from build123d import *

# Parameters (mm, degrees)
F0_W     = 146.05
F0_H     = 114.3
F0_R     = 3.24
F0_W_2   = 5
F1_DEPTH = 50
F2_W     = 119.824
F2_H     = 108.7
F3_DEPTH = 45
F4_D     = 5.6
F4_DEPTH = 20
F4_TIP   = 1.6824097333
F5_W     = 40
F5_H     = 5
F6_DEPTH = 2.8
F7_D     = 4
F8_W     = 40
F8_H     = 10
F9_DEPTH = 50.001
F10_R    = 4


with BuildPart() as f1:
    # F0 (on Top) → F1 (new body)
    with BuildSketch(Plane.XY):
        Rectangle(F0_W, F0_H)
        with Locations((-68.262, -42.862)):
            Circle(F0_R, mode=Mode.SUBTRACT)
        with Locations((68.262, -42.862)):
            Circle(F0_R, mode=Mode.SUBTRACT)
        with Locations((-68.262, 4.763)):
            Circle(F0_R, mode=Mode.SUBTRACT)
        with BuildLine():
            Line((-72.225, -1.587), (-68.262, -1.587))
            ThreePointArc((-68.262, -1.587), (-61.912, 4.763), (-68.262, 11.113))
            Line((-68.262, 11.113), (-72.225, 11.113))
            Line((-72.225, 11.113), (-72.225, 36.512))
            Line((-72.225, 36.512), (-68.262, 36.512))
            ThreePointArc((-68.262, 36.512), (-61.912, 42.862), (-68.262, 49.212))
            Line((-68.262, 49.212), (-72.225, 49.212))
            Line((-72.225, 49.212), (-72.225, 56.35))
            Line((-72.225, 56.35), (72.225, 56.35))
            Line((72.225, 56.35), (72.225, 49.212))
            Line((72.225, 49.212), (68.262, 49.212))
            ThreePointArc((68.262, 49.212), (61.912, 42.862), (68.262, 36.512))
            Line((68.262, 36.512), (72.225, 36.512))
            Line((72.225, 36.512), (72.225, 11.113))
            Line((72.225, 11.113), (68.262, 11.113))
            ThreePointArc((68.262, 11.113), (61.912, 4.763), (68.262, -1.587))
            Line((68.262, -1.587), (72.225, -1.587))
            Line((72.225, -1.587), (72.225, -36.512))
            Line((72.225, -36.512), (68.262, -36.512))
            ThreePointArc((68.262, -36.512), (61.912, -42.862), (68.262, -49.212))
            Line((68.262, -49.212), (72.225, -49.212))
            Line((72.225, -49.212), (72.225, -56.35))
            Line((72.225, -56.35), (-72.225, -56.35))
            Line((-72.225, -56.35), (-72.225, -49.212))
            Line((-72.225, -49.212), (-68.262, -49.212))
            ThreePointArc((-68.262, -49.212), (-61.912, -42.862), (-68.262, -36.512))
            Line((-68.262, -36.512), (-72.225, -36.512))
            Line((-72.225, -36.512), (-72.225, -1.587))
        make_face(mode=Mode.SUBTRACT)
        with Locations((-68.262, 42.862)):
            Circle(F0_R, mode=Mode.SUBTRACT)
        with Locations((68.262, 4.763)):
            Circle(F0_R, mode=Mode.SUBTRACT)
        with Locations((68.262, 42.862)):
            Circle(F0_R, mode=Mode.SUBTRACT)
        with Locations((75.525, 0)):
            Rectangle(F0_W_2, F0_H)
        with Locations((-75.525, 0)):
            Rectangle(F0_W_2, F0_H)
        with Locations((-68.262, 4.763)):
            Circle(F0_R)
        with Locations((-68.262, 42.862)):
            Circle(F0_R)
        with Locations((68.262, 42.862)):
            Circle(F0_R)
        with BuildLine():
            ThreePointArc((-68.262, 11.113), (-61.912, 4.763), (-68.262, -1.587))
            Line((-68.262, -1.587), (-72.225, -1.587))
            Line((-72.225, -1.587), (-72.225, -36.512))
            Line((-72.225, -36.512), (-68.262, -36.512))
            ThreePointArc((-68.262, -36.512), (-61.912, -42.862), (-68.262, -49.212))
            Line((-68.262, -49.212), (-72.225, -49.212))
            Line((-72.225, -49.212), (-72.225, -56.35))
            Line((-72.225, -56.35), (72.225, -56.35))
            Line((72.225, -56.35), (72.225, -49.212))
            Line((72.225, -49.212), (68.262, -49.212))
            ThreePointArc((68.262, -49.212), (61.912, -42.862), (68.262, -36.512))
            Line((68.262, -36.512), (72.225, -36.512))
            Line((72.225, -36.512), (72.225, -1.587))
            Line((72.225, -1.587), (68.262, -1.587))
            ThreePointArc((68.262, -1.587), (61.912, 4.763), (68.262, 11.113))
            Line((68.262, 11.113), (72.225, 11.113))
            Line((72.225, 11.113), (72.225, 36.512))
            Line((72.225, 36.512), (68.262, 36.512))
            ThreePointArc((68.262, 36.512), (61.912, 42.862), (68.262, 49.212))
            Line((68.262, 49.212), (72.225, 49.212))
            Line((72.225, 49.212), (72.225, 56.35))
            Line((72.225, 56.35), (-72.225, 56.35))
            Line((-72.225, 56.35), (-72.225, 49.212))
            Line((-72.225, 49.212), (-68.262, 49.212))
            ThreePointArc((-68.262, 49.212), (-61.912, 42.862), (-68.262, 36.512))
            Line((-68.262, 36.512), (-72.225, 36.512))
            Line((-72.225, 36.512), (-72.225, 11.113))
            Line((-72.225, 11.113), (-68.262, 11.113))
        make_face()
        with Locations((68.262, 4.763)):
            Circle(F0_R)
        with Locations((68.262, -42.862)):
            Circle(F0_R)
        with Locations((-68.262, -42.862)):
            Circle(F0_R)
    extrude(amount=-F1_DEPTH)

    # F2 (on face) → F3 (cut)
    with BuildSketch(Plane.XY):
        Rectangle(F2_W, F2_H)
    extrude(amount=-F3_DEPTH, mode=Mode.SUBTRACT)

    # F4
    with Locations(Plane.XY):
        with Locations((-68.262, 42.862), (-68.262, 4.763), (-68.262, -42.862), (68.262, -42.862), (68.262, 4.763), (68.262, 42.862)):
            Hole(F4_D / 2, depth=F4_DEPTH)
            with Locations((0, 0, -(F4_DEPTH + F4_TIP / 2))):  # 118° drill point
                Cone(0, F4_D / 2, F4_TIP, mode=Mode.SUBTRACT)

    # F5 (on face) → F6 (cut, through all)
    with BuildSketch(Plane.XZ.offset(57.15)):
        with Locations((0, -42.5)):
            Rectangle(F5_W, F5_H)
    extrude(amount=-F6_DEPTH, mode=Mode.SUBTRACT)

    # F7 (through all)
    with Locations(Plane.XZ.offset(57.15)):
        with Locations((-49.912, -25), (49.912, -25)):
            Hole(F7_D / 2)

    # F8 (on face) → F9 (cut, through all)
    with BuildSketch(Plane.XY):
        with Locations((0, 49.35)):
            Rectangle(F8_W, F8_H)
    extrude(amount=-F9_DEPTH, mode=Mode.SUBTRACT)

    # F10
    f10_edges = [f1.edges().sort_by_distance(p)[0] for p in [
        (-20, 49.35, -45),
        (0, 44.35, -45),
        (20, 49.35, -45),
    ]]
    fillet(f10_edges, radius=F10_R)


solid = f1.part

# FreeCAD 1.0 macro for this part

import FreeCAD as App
import Part
import Sketcher


def edges_at(feature, points):
    """Names of the edges that pass closest to the given points."""
    edges = feature.Shape.Edges
    near = lambda p: min(range(len(edges)), key=lambda i: edges[i].distToShape(Part.Vertex(*p))[0])
    return sorted({f"Edge{near(p) + 1}" for p in points})

doc = App.newDocument("Part")
body = doc.addObject("PartDesign::Body", "Body")

# Sketch on XY plane
sketch1 = body.newObject("Sketcher::SketchObject", "Sketch")
sketch1.AttachmentSupport = (doc.getObject("XY_Plane"), [""])
sketch1.MapMode = "FlatFace"
sketch1.addGeometry(Part.LineSegment(App.Vector(78, -57, 0), App.Vector(78, 57, 0)), False)
sketch1.addGeometry(Part.LineSegment(App.Vector(78, 57, 0), App.Vector(-78, 57, 0)), False)
sketch1.addGeometry(Part.LineSegment(App.Vector(-78, 57, 0), App.Vector(-78, -57, 0)), False)
sketch1.addGeometry(Part.LineSegment(App.Vector(-78, -57, 0), App.Vector(78, -57, 0)), False)
sketch1.addConstraint(Sketcher.Constraint("Coincident", 0, 2, 1, 1))
sketch1.addConstraint(Sketcher.Constraint("Coincident", 1, 2, 2, 1))
sketch1.addConstraint(Sketcher.Constraint("Coincident", 2, 2, 3, 1))
sketch1.addConstraint(Sketcher.Constraint("Coincident", 3, 2, 0, 1))
sketch1.addConstraint(Sketcher.Constraint("Vertical", 0))
sketch1.addConstraint(Sketcher.Constraint("Horizontal", 1))
sketch1.addConstraint(Sketcher.Constraint("Vertical", 2))
sketch1.addConstraint(Sketcher.Constraint("Horizontal", 3))
sketch1.addConstraint(Sketcher.Constraint("Symmetric", 0, 2, 2, 2, -1, 1))
sketch1.addConstraint(Sketcher.Constraint("DistanceY", 0, 1, 0, 2, 114.3))
sketch1.addConstraint(Sketcher.Constraint("DistanceX", 1, 2, 1, 1, 156.05))
pad1 = body.newObject("PartDesign::Pad", "Pad")
pad1.Profile = sketch1
pad1.Length = 50
pad1.Reversed = True

# Sketch on XY plane
sketch2 = body.newObject("Sketcher::SketchObject", "Sketch001")
sketch2.AttachmentSupport = (doc.getObject("XY_Plane"), [""])
sketch2.MapMode = "FlatFace"
sketch2.addGeometry(Part.LineSegment(App.Vector(-60, 54, 0), App.Vector(-60, -54, 0)), False)
sketch2.addGeometry(Part.LineSegment(App.Vector(-60, -54, 0), App.Vector(60, -54, 0)), False)
sketch2.addGeometry(Part.LineSegment(App.Vector(60, -54, 0), App.Vector(60, 54, 0)), False)
sketch2.addGeometry(Part.LineSegment(App.Vector(60, 54, 0), App.Vector(-60, 54, 0)), False)
sketch2.addConstraint(Sketcher.Constraint("Coincident", 0, 2, 1, 1))
sketch2.addConstraint(Sketcher.Constraint("Coincident", 1, 2, 2, 1))
sketch2.addConstraint(Sketcher.Constraint("Coincident", 2, 2, 3, 1))
sketch2.addConstraint(Sketcher.Constraint("Coincident", 3, 2, 0, 1))
sketch2.addConstraint(Sketcher.Constraint("Vertical", 0))
sketch2.addConstraint(Sketcher.Constraint("Horizontal", 1))
sketch2.addConstraint(Sketcher.Constraint("Vertical", 2))
sketch2.addConstraint(Sketcher.Constraint("Horizontal", 3))
sketch2.addConstraint(Sketcher.Constraint("Symmetric", 0, 2, 2, 2, -1, 1))
sketch2.addConstraint(Sketcher.Constraint("DistanceY", 0, 2, 0, 1, 108.7))
sketch2.addConstraint(Sketcher.Constraint("DistanceX", 1, 1, 1, 2, 119.824))
pocket1 = body.newObject("PartDesign::Pocket", "Pocket")
pocket1.Profile = sketch2
pocket1.Length = 45

# Sketch on XY plane
sketch3 = body.newObject("Sketcher::SketchObject", "Sketch002")
sketch3.AttachmentSupport = (doc.getObject("XY_Plane"), [""])
sketch3.MapMode = "FlatFace"
sketch3.addGeometry(Part.Circle(App.Vector(-68.3, 42.9, 0), App.Vector(0, 0, 1), 2.8), False)
sketch3.addGeometry(Part.Circle(App.Vector(-68.3, 4.8, 0), App.Vector(0, 0, 1), 2.8), False)
sketch3.addGeometry(Part.Circle(App.Vector(-68.3, -42.9, 0), App.Vector(0, 0, 1), 2.8), False)
sketch3.addGeometry(Part.Circle(App.Vector(68.3, -42.9, 0), App.Vector(0, 0, 1), 2.8), False)
sketch3.addGeometry(Part.Circle(App.Vector(68.3, 4.8, 0), App.Vector(0, 0, 1), 2.8), False)
sketch3.addGeometry(Part.Circle(App.Vector(68.3, 42.9, 0), App.Vector(0, 0, 1), 2.8), False)
sketch3.addConstraint(Sketcher.Constraint("Equal", 0, 1))
sketch3.addConstraint(Sketcher.Constraint("Equal", 1, 2))
sketch3.addConstraint(Sketcher.Constraint("Equal", 2, 3))
sketch3.addConstraint(Sketcher.Constraint("Equal", 3, 4))
sketch3.addConstraint(Sketcher.Constraint("Equal", 4, 5))
sketch3.addConstraint(Sketcher.Constraint("Symmetric", 0, 3, 3, 3, -1, 1))
sketch3.addConstraint(Sketcher.Constraint("Symmetric", 2, 3, 5, 3, -1, 1))
sketch3.addConstraint(Sketcher.Constraint("Symmetric", 2, 3, 3, 3, -2))
sketch3.addConstraint(Sketcher.Constraint("Symmetric", 1, 3, 4, 3, -2))
sketch3.addConstraint(Sketcher.Constraint("Vertical", 0, 3, 1, 3))
sketch3.addConstraint(Sketcher.Constraint("Diameter", 0, 5.6))
sketch3.addConstraint(Sketcher.Constraint("DistanceX", 0, 3, -1, 1, 68.262))
sketch3.addConstraint(Sketcher.Constraint("DistanceY", -1, 1, 0, 3, 42.862))
sketch3.addConstraint(Sketcher.Constraint("DistanceY", -1, 1, 1, 3, 4.763))
doc.recompute()
hole = body.newObject("PartDesign::Hole", "Hole")
hole.Profile = sketch3
hole.ThreadType = "None"
hole.Diameter = 5.6
hole.DepthType = "Dimension"
hole.Depth = 20
hole.DrillPoint = "Angled"
hole.DrillPointAngle = 118

# Sketch on XZ plane
sketch4 = body.newObject("Sketcher::SketchObject", "Sketch003")
sketch4.AttachmentSupport = (doc.getObject("XZ_Plane"), [""])
sketch4.MapMode = "FlatFace"
sketch4.AttachmentOffset = App.Placement(App.Vector(0, 0, 57.15), App.Rotation())
sketch4.addGeometry(Part.LineSegment(App.Vector(-20, -40, 0), App.Vector(-20, -45, 0)), False)
sketch4.addGeometry(Part.LineSegment(App.Vector(-20, -45, 0), App.Vector(20, -45, 0)), False)
sketch4.addGeometry(Part.LineSegment(App.Vector(20, -45, 0), App.Vector(20, -40, 0)), False)
sketch4.addGeometry(Part.LineSegment(App.Vector(20, -40, 0), App.Vector(-20, -40, 0)), False)
sketch4.addConstraint(Sketcher.Constraint("Coincident", 0, 2, 1, 1))
sketch4.addConstraint(Sketcher.Constraint("Coincident", 1, 2, 2, 1))
sketch4.addConstraint(Sketcher.Constraint("Coincident", 2, 2, 3, 1))
sketch4.addConstraint(Sketcher.Constraint("Coincident", 3, 2, 0, 1))
sketch4.addConstraint(Sketcher.Constraint("Vertical", 0))
sketch4.addConstraint(Sketcher.Constraint("Horizontal", 1))
sketch4.addConstraint(Sketcher.Constraint("Vertical", 2))
sketch4.addConstraint(Sketcher.Constraint("Horizontal", 3))
sketch4.addConstraint(Sketcher.Constraint("DistanceX", 1, 1, 1, 2, 40.0))
sketch4.addConstraint(Sketcher.Constraint("DistanceY", 0, 2, 0, 1, 5.0))
sketch4.addConstraint(Sketcher.Constraint("DistanceX", 0, 2, -1, 1, 20.0))
sketch4.addConstraint(Sketcher.Constraint("DistanceY", 0, 2, -1, 1, 45.0))
pocket2 = body.newObject("PartDesign::Pocket", "Pocket001")
pocket2.Profile = sketch4
pocket2.Length = 2.8

# Sketch on XZ plane
sketch5 = body.newObject("Sketcher::SketchObject", "Sketch004")
sketch5.AttachmentSupport = (doc.getObject("XZ_Plane"), [""])
sketch5.MapMode = "FlatFace"
sketch5.AttachmentOffset = App.Placement(App.Vector(0, 0, 57.15), App.Rotation())
sketch5.addGeometry(Part.Circle(App.Vector(-49.9, -25, 0), App.Vector(0, 0, 1), 2), False)
sketch5.addGeometry(Part.Circle(App.Vector(49.9, -25, 0), App.Vector(0, 0, 1), 2), False)
sketch5.addConstraint(Sketcher.Constraint("Equal", 0, 1))
sketch5.addConstraint(Sketcher.Constraint("Symmetric", 0, 3, 1, 3, -2))
sketch5.addConstraint(Sketcher.Constraint("Diameter", 0, 4.0))
sketch5.addConstraint(Sketcher.Constraint("DistanceY", 0, 3, -1, 1, 25.0))
sketch5.addConstraint(Sketcher.Constraint("DistanceX", 0, 3, -1, 1, 49.912))
doc.recompute()
hole2 = body.newObject("PartDesign::Hole", "Hole001")
hole2.Profile = sketch5
hole2.ThreadType = "None"
hole2.Diameter = 4
hole2.DepthType = "ThroughAll"

# Sketch on XY plane
sketch6 = body.newObject("Sketcher::SketchObject", "Sketch005")
sketch6.AttachmentSupport = (doc.getObject("XY_Plane"), [""])
sketch6.MapMode = "FlatFace"
sketch6.addGeometry(Part.LineSegment(App.Vector(-20, 54, 0), App.Vector(-20, 44, 0)), False)
sketch6.addGeometry(Part.LineSegment(App.Vector(-20, 44, 0), App.Vector(20, 44, 0)), False)
sketch6.addGeometry(Part.LineSegment(App.Vector(20, 44, 0), App.Vector(20, 54, 0)), False)
sketch6.addGeometry(Part.LineSegment(App.Vector(20, 54, 0), App.Vector(-20, 54, 0)), False)
sketch6.addConstraint(Sketcher.Constraint("Coincident", 0, 2, 1, 1))
sketch6.addConstraint(Sketcher.Constraint("Coincident", 1, 2, 2, 1))
sketch6.addConstraint(Sketcher.Constraint("Coincident", 2, 2, 3, 1))
sketch6.addConstraint(Sketcher.Constraint("Coincident", 3, 2, 0, 1))
sketch6.addConstraint(Sketcher.Constraint("Vertical", 0))
sketch6.addConstraint(Sketcher.Constraint("Horizontal", 1))
sketch6.addConstraint(Sketcher.Constraint("Vertical", 2))
sketch6.addConstraint(Sketcher.Constraint("Horizontal", 3))
sketch6.addConstraint(Sketcher.Constraint("DistanceX", 1, 1, 1, 2, 40.0))
sketch6.addConstraint(Sketcher.Constraint("DistanceY", 0, 2, 0, 1, 10.0))
sketch6.addConstraint(Sketcher.Constraint("DistanceX", 0, 2, -1, 1, 20.0))
sketch6.addConstraint(Sketcher.Constraint("DistanceY", -1, 1, 0, 2, 44.35))
pocket3 = body.newObject("PartDesign::Pocket", "Pocket002")
pocket3.Profile = sketch6
pocket3.Type = "ThroughAll"
doc.recompute()

fillet = body.newObject("PartDesign::Fillet", "Fillet")
fillet.Base = (pocket3, edges_at(pocket3, [(-20, 49.35, -45), (0, 44.35, -45), (20, 49.35, -45)]))
fillet.Radius = 4

doc.recompute()
